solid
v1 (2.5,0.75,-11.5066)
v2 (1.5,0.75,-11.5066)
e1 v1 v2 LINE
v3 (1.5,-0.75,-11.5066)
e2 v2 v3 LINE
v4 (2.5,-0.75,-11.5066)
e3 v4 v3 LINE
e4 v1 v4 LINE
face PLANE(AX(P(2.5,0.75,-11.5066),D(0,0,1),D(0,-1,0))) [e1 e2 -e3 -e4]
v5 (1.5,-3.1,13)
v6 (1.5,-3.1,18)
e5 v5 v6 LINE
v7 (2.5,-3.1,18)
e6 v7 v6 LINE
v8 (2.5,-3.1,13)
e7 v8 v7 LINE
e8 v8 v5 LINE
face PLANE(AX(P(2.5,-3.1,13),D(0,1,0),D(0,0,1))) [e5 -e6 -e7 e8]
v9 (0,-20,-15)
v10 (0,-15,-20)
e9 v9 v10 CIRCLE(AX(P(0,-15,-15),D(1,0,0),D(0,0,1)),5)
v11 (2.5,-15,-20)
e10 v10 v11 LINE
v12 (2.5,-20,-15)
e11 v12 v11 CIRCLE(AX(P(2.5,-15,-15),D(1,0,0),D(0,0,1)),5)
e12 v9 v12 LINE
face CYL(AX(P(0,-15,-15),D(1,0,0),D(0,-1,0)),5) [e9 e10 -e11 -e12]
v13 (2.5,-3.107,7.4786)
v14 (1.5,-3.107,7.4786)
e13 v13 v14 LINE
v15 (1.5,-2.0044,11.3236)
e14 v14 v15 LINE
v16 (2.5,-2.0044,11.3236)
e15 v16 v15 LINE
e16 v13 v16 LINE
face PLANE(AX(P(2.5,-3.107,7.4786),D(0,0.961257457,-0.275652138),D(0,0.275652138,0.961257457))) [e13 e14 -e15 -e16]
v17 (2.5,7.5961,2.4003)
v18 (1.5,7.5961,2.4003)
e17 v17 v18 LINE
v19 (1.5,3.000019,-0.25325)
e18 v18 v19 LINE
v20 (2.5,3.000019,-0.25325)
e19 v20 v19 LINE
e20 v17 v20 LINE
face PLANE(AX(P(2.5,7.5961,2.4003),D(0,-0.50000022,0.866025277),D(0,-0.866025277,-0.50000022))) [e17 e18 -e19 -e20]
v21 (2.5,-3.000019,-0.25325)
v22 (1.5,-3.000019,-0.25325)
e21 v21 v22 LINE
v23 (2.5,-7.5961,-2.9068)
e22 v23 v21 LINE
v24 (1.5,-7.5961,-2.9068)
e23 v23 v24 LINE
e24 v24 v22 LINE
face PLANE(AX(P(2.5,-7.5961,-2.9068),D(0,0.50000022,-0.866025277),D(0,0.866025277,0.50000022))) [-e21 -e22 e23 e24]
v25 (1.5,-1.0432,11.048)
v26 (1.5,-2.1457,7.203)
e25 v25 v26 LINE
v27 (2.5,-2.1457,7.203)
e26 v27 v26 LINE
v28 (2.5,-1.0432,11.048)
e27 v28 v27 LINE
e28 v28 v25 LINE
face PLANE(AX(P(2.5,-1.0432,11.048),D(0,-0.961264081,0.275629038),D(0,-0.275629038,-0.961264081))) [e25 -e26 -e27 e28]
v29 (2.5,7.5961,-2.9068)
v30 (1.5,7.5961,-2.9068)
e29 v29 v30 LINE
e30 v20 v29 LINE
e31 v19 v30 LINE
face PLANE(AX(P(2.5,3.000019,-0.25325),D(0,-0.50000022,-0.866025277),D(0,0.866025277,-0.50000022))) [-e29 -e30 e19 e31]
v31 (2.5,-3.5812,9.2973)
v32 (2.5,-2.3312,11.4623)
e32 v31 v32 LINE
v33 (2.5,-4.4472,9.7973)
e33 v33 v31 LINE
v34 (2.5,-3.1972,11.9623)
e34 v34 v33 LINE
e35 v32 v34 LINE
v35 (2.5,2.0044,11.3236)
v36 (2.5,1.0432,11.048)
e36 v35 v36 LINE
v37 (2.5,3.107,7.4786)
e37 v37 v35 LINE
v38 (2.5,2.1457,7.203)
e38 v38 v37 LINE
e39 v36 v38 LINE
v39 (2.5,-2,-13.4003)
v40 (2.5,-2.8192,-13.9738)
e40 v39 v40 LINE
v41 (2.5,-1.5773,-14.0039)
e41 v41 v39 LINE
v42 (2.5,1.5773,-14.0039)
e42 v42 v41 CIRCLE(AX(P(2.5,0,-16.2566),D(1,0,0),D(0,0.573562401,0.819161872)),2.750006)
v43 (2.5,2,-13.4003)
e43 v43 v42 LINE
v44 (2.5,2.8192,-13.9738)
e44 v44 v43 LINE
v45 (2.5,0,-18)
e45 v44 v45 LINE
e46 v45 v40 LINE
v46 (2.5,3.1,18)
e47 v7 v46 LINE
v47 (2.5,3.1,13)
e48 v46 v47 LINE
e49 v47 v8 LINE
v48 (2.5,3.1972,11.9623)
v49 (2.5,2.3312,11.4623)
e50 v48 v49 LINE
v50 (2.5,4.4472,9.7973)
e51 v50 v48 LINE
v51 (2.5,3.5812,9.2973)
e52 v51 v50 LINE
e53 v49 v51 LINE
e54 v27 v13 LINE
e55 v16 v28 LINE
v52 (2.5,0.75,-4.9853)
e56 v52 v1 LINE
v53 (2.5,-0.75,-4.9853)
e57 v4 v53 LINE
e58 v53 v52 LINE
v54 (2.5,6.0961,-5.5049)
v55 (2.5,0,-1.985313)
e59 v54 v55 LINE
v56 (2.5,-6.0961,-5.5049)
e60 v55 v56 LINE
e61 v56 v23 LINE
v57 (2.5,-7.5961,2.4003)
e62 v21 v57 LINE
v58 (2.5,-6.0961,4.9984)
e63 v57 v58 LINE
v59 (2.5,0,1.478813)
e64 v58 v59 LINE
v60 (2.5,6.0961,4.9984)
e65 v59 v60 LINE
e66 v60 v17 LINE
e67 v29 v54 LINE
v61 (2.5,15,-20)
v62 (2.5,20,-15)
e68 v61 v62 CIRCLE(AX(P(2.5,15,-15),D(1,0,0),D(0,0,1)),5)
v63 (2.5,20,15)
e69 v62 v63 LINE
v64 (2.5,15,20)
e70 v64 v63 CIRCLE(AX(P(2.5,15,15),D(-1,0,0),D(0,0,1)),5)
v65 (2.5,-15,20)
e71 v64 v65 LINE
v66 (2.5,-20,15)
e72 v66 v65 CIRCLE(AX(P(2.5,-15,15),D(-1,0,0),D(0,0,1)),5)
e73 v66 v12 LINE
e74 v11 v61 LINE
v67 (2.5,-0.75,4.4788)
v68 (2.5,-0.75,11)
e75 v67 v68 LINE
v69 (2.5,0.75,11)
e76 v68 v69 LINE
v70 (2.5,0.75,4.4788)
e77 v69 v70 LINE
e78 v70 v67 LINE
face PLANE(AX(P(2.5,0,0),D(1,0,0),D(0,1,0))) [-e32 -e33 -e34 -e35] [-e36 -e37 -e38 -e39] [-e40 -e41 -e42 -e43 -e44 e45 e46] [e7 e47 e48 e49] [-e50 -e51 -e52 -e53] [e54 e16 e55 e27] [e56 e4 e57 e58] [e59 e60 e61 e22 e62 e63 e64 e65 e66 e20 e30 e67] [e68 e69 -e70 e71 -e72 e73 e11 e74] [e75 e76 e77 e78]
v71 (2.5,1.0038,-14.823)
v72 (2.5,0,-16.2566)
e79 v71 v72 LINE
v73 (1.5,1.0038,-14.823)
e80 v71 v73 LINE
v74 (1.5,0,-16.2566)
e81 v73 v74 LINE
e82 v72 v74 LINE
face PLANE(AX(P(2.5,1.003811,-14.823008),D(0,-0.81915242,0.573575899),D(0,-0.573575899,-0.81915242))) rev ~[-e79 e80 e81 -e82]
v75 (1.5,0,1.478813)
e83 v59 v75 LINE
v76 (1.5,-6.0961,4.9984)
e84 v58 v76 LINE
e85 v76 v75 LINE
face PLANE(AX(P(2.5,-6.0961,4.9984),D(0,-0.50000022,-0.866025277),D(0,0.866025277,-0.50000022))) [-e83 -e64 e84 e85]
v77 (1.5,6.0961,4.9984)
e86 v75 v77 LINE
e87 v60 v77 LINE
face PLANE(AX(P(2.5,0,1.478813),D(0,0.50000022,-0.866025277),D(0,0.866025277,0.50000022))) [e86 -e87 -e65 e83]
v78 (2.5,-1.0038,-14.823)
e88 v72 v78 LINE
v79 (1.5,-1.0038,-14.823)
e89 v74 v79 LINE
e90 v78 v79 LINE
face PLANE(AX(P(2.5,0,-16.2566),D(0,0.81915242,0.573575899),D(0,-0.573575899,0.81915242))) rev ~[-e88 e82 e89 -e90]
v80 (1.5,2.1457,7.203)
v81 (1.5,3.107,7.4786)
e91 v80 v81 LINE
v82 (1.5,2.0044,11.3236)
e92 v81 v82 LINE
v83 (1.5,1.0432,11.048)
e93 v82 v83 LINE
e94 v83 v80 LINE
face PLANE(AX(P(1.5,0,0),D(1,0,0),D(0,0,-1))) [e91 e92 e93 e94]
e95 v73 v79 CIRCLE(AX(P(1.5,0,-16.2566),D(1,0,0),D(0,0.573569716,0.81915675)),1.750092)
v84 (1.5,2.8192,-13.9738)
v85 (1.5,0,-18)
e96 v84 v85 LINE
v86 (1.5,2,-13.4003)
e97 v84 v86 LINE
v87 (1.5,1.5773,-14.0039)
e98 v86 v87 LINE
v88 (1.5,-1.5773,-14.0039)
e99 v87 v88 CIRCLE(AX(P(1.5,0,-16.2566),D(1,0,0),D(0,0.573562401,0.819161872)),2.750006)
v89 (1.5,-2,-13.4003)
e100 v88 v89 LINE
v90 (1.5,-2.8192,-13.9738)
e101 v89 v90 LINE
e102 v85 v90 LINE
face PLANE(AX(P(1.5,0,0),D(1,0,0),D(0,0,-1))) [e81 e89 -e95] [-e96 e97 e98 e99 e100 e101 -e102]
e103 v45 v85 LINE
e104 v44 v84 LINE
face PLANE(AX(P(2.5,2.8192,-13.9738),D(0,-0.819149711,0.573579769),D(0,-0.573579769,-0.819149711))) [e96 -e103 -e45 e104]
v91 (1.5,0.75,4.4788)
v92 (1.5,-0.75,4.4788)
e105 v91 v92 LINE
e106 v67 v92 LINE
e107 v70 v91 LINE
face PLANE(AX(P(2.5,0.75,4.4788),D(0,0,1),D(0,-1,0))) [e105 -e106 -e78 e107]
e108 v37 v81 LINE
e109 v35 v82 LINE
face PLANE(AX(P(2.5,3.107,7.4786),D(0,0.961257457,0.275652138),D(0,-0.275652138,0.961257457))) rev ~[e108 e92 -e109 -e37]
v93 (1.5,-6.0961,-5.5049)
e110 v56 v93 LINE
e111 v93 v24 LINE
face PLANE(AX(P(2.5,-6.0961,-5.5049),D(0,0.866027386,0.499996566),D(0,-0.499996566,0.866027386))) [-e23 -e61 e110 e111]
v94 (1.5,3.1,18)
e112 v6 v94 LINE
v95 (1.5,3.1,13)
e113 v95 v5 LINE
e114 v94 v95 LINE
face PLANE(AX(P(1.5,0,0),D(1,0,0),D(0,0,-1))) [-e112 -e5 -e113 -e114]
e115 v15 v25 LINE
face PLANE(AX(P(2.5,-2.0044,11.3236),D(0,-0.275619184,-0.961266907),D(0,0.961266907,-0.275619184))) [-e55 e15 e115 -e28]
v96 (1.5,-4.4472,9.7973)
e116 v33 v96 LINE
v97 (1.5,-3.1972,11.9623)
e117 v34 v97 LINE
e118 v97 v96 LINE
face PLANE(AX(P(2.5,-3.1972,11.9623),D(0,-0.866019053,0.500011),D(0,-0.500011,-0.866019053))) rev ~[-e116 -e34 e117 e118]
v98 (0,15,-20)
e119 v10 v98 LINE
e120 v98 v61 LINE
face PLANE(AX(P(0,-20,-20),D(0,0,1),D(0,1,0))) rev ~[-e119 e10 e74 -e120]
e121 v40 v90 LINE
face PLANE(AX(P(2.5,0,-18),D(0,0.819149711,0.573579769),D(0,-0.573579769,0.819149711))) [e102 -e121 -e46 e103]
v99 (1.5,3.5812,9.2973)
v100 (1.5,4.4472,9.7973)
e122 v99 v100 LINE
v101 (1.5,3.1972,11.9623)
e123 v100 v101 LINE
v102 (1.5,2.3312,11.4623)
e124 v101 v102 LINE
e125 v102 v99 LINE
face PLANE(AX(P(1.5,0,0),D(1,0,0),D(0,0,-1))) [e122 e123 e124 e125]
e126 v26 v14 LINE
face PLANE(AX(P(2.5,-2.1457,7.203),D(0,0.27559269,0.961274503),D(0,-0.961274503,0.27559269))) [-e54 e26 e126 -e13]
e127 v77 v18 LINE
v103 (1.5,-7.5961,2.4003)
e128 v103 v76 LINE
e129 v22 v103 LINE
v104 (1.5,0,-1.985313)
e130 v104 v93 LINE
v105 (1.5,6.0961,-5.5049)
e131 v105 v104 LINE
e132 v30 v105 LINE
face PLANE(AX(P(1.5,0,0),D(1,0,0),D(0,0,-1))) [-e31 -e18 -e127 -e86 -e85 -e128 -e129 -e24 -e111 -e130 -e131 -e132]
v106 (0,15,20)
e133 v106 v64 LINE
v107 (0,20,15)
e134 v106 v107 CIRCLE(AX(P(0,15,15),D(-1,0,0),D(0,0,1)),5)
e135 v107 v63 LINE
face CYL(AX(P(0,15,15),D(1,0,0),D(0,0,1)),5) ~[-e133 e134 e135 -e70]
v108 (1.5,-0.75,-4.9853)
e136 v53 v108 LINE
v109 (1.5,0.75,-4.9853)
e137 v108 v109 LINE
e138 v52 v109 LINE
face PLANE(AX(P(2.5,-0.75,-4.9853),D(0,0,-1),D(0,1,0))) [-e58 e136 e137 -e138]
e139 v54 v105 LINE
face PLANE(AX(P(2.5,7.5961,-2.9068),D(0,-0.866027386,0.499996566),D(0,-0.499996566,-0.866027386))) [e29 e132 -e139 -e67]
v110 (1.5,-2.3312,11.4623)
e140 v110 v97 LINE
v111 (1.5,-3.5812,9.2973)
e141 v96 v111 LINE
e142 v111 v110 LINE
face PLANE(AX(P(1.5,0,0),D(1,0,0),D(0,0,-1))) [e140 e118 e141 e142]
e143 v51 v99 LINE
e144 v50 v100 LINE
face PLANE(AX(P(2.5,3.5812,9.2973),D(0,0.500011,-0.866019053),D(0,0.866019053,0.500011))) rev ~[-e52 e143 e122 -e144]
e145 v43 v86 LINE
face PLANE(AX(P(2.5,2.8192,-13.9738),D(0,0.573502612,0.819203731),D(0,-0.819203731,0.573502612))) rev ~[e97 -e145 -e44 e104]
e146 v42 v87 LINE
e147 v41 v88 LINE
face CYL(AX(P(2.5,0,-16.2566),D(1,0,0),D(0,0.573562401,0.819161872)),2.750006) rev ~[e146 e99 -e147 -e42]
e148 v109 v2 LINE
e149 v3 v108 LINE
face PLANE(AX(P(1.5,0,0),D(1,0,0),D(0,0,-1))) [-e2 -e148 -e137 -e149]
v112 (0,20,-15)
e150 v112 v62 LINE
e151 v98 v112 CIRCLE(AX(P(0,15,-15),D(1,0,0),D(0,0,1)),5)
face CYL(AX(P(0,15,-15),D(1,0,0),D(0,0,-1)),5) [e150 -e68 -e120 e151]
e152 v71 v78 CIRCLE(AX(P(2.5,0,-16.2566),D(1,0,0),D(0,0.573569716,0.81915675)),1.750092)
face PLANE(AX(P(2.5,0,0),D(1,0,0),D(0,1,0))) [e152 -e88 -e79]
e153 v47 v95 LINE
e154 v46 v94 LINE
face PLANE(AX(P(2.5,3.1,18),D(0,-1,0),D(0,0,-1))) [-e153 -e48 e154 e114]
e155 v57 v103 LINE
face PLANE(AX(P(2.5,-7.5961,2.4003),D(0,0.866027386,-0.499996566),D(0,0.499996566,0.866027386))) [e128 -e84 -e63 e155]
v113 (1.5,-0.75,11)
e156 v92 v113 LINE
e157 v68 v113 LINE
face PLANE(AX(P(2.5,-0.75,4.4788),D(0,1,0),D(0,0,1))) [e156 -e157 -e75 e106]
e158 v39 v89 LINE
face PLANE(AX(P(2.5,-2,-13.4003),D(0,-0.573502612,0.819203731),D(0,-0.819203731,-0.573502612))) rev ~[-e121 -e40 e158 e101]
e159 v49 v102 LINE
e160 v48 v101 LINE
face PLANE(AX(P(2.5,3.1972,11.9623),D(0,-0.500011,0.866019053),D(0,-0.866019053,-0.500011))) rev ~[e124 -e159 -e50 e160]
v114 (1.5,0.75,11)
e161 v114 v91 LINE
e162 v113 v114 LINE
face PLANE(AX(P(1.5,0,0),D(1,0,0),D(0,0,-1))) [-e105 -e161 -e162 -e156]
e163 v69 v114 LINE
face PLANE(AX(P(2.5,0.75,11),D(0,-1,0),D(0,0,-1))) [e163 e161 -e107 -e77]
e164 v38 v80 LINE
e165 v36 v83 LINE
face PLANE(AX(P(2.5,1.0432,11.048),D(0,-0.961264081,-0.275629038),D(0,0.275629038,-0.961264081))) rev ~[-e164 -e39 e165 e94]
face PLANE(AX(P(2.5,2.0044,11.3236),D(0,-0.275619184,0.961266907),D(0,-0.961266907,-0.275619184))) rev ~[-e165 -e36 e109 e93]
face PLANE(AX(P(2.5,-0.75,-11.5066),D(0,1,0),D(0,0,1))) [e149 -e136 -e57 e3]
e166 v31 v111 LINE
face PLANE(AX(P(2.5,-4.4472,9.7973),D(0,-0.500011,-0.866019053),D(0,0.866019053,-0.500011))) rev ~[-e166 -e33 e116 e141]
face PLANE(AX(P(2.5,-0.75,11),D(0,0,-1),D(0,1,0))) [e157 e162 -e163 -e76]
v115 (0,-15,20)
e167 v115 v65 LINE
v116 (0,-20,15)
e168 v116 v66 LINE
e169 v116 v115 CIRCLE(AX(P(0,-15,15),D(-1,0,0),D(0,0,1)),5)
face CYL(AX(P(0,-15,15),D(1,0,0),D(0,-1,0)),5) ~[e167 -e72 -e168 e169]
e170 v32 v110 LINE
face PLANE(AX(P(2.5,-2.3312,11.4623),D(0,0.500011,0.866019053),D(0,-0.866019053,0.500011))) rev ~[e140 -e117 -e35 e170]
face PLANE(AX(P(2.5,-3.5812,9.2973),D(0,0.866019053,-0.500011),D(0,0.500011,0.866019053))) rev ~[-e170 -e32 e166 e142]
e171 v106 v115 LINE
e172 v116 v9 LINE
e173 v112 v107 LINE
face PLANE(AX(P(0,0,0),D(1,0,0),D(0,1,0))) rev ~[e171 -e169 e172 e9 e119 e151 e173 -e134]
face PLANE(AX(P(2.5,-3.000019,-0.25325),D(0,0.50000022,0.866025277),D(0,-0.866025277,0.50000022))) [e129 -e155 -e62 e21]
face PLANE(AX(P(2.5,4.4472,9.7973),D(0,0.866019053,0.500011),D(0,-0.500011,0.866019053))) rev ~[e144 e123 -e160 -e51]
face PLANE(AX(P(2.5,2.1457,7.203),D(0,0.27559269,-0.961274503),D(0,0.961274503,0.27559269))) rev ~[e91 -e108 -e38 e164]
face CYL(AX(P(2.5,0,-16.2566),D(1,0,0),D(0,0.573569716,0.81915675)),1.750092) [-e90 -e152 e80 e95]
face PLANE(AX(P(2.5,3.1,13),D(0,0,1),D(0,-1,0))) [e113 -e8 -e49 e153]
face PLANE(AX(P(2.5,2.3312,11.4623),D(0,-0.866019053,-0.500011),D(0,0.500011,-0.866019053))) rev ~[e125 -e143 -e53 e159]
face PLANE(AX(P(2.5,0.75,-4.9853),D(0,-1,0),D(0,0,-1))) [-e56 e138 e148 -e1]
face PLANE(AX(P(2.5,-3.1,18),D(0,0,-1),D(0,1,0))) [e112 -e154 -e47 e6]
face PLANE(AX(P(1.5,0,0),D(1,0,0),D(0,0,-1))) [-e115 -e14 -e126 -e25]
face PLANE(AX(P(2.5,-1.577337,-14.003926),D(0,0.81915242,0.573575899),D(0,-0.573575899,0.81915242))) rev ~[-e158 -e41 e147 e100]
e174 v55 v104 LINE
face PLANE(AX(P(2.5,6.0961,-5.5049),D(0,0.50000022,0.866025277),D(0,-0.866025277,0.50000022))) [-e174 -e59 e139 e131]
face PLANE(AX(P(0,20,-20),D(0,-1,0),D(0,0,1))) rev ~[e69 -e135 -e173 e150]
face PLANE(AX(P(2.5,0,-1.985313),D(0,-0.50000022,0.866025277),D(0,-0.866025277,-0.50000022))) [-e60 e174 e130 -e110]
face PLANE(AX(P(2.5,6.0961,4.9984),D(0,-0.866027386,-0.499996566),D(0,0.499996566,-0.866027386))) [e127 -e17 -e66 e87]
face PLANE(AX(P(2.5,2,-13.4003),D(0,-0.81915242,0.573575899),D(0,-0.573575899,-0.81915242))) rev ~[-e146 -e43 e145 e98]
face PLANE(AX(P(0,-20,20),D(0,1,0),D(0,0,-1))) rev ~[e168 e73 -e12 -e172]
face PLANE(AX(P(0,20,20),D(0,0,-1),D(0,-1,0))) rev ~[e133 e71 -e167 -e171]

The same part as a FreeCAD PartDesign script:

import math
import FreeCAD as App
import Part
import Sketcher

V = App.Vector
Q = App.Units.Quantity


def edges_at(feature, points):
    """Names of the edges that pass closest to the given points."""
    edges = feature.Shape.Edges
    near = lambda p: min(range(len(edges)), key=lambda i: edges[i].distToShape(Part.Vertex(*p))[0])
    return sorted({f"Edge{near(p) + 1}" for p in points})


def add_polygon(sketch, points):
    """Adds a closed chain of lines whose ends are joined by coincident constraints."""
    first, n = sketch.GeometryCount, len(points)
    for a, b in zip(points, points[1:] + points[:1]):
        sketch.addGeometry(Part.LineSegment(App.Vector(*a, 0), App.Vector(*b, 0)), False)
    for i in range(n):
        sketch.addConstraint(Sketcher.Constraint("Coincident", first + i, 2, first + (i + 1) % n, 1))

doc = App.newDocument("Part")
body = doc.addObject("PartDesign::Body", "Body")

# Sketch on YZ plane
sketch1 = body.newObject("Sketcher::SketchObject", "Sketch")
sketch1.AttachmentSupport = (doc.getObject("YZ_Plane"), [""])
sketch1.MapMode = "FlatFace"
add_polygon(sketch1, [(-20, 20), (-20, -20), (20, -20), (20, 20)])  # lines 0-3
sketch1.addConstraint([
    Sketcher.Constraint("Vertical", 0),
    Sketcher.Constraint("Horizontal", 1),
    Sketcher.Constraint("Vertical", 2),
    Sketcher.Constraint("Horizontal", 3),
    Sketcher.Constraint("Symmetric", 0, 2, 2, 2, -1, 1),
    Sketcher.Constraint("Equal", 3, 0),
    Sketcher.Constraint("DistanceX", 1, 1, 1, 2, 40.0),
])
pad1 = body.newObject("PartDesign::Pad", "Pad")
pad1.Profile = sketch1
pad1.Length = 2.5

# Sketch on YZ plane
sketch2 = body.newObject("Sketcher::SketchObject", "Sketch001")
sketch2.AttachmentSupport = (doc.getObject("YZ_Plane"), [""])
sketch2.MapMode = "FlatFace"
sketch2.AttachmentOffset = App.Placement(V(0, 0, 2.5), App.Rotation())
add_polygon(sketch2, [(3.1, 13), (3.1, 18), (-3.1, 18), (-3.1, 13)])  # lines 0-3
add_polygon(sketch2, [(0.75, 4.4788), (0.75, 11), (-0.75, 11), (-0.75, 4.4788)])  # lines 4-7
sketch2.addGeometry(Part.LineSegment(V(0, -18, 0), V(2.8192, -13.9738, 0)), False)  # 8
sketch2.addGeometry(Part.LineSegment(V(2.8192, -13.9738, 0), V(2, -13.4003, 0)), False)  # 9
sketch2.addGeometry(Part.LineSegment(V(2, -13.4003, 0), V(1.577337, -14.003926, 0)), False)  # 10
sketch2.addGeometry(Part.ArcOfCircle(Part.Circle(V(0, -16.2566, 0), V(0, 0, 1), 2.750006), math.radians(55.000982), math.radians(124.999018)), False)  # 11
sketch2.addGeometry(Part.LineSegment(V(-1.577337, -14.003926, 0), V(-2, -13.4003, 0)), False)  # 12
sketch2.addGeometry(Part.LineSegment(V(-2, -13.4003, 0), V(-2.8192, -13.9738, 0)), False)  # 13
sketch2.addGeometry(Part.LineSegment(V(-2.8192, -13.9738, 0), V(0, -18, 0)), False)  # 14
sketch2.addGeometry(Part.LineSegment(V(0, -16.2566, 0), V(-1.003811, -14.823008, 0)), False)  # 15
sketch2.addGeometry(Part.ArcOfCircle(Part.Circle(V(0, -16.2566, 0), V(0, 0, 1), 1.750092), math.radians(55.00047), math.radians(124.99953)), False)  # 16
sketch2.addGeometry(Part.LineSegment(V(1.003811, -14.823008, 0), V(0, -16.2566, 0)), False)  # 17
add_polygon(sketch2, [(0.75, -11.5066), (0.75, -4.9853), (-0.75, -4.9853), (-0.75, -11.5066)])  # lines 18-21
add_polygon(sketch2, [(3.107, 7.4786), (2.0044, 11.3236), (1.0432, 11.048), (2.1457, 7.203)])  # lines 22-25
add_polygon(sketch2, [(-2.1457, 7.203), (-1.0432, 11.048), (-2.0044, 11.3236), (-3.107, 7.4786)])  # lines 26-29
add_polygon(sketch2, [(4.4472, 9.7973), (3.1972, 11.9623), (2.3312, 11.4623), (3.5812, 9.2973)])  # lines 30-33
add_polygon(sketch2, [(-3.5812, 9.2973), (-2.3312, 11.4623), (-3.1972, 11.9623), (-4.4472, 9.7973)])  # lines 34-37
add_polygon(sketch2, [(7.5961, 2.4003), (6.0961, 4.9984), (0, 1.478813), (-6.0961, 4.9984), (-7.5961, 2.4003), (-3.000019, -0.25325), (-7.5961, -2.9068), (-6.0961, -5.5049), (0, -1.985313), (6.0961, -5.5049), (7.5961, -2.9068), (3.000019, -0.25325)])  # lines 38-49
sketch2.addConstraint([
    Sketcher.Constraint("Coincident", 8, 2, 9, 1),
    Sketcher.Constraint("Coincident", 9, 2, 10, 1),
    Sketcher.Constraint("Coincident", 10, 2, 11, 1),
    Sketcher.Constraint("Coincident", 11, 2, 12, 1),
    Sketcher.Constraint("Coincident", 12, 2, 13, 1),
    Sketcher.Constraint("Coincident", 13, 2, 14, 1),
    Sketcher.Constraint("Coincident", 14, 2, 8, 1),
    Sketcher.Constraint("Coincident", 15, 2, 16, 2),
    Sketcher.Constraint("Coincident", 16, 1, 17, 1),
    Sketcher.Constraint("Coincident", 17, 2, 15, 1),
    Sketcher.Constraint("Vertical", 0),
    Sketcher.Constraint("Horizontal", 1),
    Sketcher.Constraint("Vertical", 2),
    Sketcher.Constraint("Horizontal", 3),
    Sketcher.Constraint("Vertical", 4),
    Sketcher.Constraint("Horizontal", 5),
    Sketcher.Constraint("Vertical", 6),
    Sketcher.Constraint("Horizontal", 7),
    Sketcher.Constraint("Vertical", 18),
    Sketcher.Constraint("Horizontal", 19),
    Sketcher.Constraint("Vertical", 20),
    Sketcher.Constraint("Horizontal", 21),
    Sketcher.Constraint("Coincident", 16, 3, 11, 3),
    Sketcher.Constraint("Coincident", 17, 2, 11, 3),
    Sketcher.Constraint("Symmetric", 10, 2, 11, 2, -2),
    Sketcher.Constraint("Symmetric", 9, 2, 12, 2, -2),
    Sketcher.Constraint("Symmetric", 8, 2, 13, 2, -2),
    Sketcher.Constraint("Symmetric", 23, 2, 26, 2, -2),
    Sketcher.Constraint("Symmetric", 22, 2, 27, 2, -2),
    Sketcher.Constraint("Symmetric", 25, 2, 28, 2, -2),
    Sketcher.Constraint("Symmetric", 24, 2, 29, 2, -2),
    Sketcher.Constraint("Symmetric", 31, 2, 34, 2, -2),
    Sketcher.Constraint("Symmetric", 30, 2, 35, 2, -2),
    Sketcher.Constraint("Symmetric", 33, 2, 36, 2, -2),
    Sketcher.Constraint("Symmetric", 32, 2, 37, 2, -2),
    Sketcher.Constraint("Symmetric", 38, 2, 40, 2, -2),
    Sketcher.Constraint("Symmetric", 44, 2, 46, 2, -2),
    Sketcher.Constraint("Symmetric", 43, 2, 47, 2, -2),
    Sketcher.Constraint("Symmetric", 42, 2, 48, 2, -2),
    Sketcher.Constraint("Symmetric", 41, 2, 49, 2, -2),
    Sketcher.Constraint("PointOnObject", 14, 2, -2),
    Sketcher.Constraint("PointOnObject", 39, 2, -2),
    Sketcher.Constraint("PointOnObject", 45, 2, -2),
    Sketcher.Constraint("Perpendicular", 8, 9),
    Sketcher.Constraint("Perpendicular", 9, 10),
    Sketcher.Constraint("Parallel", 14, 15),
    Sketcher.Constraint("Parallel", 10, 17),
    Sketcher.Constraint("Perpendicular", 22, 23),
    Sketcher.Constraint("Perpendicular", 23, 24),
    Sketcher.Constraint("Perpendicular", 24, 25),
    Sketcher.Constraint("Perpendicular", 30, 31),
    Sketcher.Constraint("Perpendicular", 31, 32),
    Sketcher.Constraint("Perpendicular", 32, 33),
    Sketcher.Constraint("Perpendicular", 33, 38),
    Sketcher.Constraint("Perpendicular", 38, 39),
    Sketcher.Constraint("Perpendicular", 41, 42),
    Sketcher.Constraint("Parallel", 39, 43),
    Sketcher.Constraint("Perpendicular", 43, 44),
    Sketcher.Constraint("Perpendicular", 44, 45),
    Sketcher.Constraint("Vertical", 7, 2, 18, 2),
    Sketcher.Constraint("Vertical", 6, 2, 19, 2),
    Sketcher.Constraint("Vertical", 41, 2, 43, 2),
    Sketcher.Constraint("Vertical", 40, 2, 44, 2),
    Sketcher.Constraint("Equal", 6, 18),
    Sketcher.Constraint("Equal", 13, 23),
    Sketcher.Constraint("Equal", 29, 31),
    Sketcher.Constraint("DistanceY", 0, 1, 0, 2, 5.0),
    Sketcher.Constraint("Angle", 44, Q("-60.0002 deg")),
    Sketcher.Constraint("Radius", 11, 2.75),
    Sketcher.Constraint("Radius", 16, 1.75),
    Sketcher.Constraint("Distance", 9, 1.0),
    Sketcher.Constraint("Distance", 22, 4.0),
    Sketcher.Constraint("Distance", 38, 3.0),
    Sketcher.Constraint("DistanceX", 1, 2, 1, 1, 6.2),
    Sketcher.Constraint("DistanceX", 5, 2, 5, 1, 1.5),
    Sketcher.Constraint("DistanceX", -1, 1, 9, 2, 2.0),
    Sketcher.Constraint("DistanceX", 42, 2, -1, 1, 3.0),
    Sketcher.Constraint("DistanceY", 4, 2, 3, 2, 2.0),
    Sketcher.Constraint("DistanceY", 39, 2, 6, 2, 3.0),
    Sketcher.Constraint("DistanceY", 18, 2, 45, 2, 3.0),
    Sketcher.Constraint("Distance", 30, 2.5),
    Sketcher.Constraint("Angle", 8, Q("54.9998 deg")),
    Sketcher.Constraint("Angle", 22, Q("106.001 deg")),
    Sketcher.Constraint("DistanceX", 6, 2, 9, 2, 2.75),
    Sketcher.Constraint("DistanceY", -1, 1, 0, 2, 18.0),
    Sketcher.Constraint("DistanceY", 14, 2, -1, 1, 18.0),
    Sketcher.Constraint("DistanceX", -1, 1, 0, 2, 3.1),
    Sketcher.Constraint("DistanceY", 7, 2, 25, 2, 2.9998),
    Sketcher.Constraint("DistanceY", 11, 2, 8, 2, 0.03),
    Sketcher.Constraint("Distance", 42, 5.307),
    Sketcher.Constraint("DistanceY", 4, 1, 4, 2, 6.5212),
    Sketcher.Constraint("DistanceX", -1, 1, 25, 2, 3.107),
    Sketcher.Constraint("DistanceX", 23, 2, 30, 2, 2.154),
    Sketcher.Constraint("DistanceY", 38, 2, 32, 2, 4.299),
])
pocket1 = body.newObject("PartDesign::Pocket", "Pocket")
pocket1.Profile = sketch2
pocket1.Length = 1
doc.recompute()

fillet = body.newObject("PartDesign::Fillet", "Fillet")
fillet.Base = (pocket1, edges_at(pocket1, [
    (1.25, 20, -20),
    (1.25, -20, -20),
    (1.25, 20, 20),
    (1.25, -20, 20),
]))
fillet.Radius = 5

doc.recompute()
